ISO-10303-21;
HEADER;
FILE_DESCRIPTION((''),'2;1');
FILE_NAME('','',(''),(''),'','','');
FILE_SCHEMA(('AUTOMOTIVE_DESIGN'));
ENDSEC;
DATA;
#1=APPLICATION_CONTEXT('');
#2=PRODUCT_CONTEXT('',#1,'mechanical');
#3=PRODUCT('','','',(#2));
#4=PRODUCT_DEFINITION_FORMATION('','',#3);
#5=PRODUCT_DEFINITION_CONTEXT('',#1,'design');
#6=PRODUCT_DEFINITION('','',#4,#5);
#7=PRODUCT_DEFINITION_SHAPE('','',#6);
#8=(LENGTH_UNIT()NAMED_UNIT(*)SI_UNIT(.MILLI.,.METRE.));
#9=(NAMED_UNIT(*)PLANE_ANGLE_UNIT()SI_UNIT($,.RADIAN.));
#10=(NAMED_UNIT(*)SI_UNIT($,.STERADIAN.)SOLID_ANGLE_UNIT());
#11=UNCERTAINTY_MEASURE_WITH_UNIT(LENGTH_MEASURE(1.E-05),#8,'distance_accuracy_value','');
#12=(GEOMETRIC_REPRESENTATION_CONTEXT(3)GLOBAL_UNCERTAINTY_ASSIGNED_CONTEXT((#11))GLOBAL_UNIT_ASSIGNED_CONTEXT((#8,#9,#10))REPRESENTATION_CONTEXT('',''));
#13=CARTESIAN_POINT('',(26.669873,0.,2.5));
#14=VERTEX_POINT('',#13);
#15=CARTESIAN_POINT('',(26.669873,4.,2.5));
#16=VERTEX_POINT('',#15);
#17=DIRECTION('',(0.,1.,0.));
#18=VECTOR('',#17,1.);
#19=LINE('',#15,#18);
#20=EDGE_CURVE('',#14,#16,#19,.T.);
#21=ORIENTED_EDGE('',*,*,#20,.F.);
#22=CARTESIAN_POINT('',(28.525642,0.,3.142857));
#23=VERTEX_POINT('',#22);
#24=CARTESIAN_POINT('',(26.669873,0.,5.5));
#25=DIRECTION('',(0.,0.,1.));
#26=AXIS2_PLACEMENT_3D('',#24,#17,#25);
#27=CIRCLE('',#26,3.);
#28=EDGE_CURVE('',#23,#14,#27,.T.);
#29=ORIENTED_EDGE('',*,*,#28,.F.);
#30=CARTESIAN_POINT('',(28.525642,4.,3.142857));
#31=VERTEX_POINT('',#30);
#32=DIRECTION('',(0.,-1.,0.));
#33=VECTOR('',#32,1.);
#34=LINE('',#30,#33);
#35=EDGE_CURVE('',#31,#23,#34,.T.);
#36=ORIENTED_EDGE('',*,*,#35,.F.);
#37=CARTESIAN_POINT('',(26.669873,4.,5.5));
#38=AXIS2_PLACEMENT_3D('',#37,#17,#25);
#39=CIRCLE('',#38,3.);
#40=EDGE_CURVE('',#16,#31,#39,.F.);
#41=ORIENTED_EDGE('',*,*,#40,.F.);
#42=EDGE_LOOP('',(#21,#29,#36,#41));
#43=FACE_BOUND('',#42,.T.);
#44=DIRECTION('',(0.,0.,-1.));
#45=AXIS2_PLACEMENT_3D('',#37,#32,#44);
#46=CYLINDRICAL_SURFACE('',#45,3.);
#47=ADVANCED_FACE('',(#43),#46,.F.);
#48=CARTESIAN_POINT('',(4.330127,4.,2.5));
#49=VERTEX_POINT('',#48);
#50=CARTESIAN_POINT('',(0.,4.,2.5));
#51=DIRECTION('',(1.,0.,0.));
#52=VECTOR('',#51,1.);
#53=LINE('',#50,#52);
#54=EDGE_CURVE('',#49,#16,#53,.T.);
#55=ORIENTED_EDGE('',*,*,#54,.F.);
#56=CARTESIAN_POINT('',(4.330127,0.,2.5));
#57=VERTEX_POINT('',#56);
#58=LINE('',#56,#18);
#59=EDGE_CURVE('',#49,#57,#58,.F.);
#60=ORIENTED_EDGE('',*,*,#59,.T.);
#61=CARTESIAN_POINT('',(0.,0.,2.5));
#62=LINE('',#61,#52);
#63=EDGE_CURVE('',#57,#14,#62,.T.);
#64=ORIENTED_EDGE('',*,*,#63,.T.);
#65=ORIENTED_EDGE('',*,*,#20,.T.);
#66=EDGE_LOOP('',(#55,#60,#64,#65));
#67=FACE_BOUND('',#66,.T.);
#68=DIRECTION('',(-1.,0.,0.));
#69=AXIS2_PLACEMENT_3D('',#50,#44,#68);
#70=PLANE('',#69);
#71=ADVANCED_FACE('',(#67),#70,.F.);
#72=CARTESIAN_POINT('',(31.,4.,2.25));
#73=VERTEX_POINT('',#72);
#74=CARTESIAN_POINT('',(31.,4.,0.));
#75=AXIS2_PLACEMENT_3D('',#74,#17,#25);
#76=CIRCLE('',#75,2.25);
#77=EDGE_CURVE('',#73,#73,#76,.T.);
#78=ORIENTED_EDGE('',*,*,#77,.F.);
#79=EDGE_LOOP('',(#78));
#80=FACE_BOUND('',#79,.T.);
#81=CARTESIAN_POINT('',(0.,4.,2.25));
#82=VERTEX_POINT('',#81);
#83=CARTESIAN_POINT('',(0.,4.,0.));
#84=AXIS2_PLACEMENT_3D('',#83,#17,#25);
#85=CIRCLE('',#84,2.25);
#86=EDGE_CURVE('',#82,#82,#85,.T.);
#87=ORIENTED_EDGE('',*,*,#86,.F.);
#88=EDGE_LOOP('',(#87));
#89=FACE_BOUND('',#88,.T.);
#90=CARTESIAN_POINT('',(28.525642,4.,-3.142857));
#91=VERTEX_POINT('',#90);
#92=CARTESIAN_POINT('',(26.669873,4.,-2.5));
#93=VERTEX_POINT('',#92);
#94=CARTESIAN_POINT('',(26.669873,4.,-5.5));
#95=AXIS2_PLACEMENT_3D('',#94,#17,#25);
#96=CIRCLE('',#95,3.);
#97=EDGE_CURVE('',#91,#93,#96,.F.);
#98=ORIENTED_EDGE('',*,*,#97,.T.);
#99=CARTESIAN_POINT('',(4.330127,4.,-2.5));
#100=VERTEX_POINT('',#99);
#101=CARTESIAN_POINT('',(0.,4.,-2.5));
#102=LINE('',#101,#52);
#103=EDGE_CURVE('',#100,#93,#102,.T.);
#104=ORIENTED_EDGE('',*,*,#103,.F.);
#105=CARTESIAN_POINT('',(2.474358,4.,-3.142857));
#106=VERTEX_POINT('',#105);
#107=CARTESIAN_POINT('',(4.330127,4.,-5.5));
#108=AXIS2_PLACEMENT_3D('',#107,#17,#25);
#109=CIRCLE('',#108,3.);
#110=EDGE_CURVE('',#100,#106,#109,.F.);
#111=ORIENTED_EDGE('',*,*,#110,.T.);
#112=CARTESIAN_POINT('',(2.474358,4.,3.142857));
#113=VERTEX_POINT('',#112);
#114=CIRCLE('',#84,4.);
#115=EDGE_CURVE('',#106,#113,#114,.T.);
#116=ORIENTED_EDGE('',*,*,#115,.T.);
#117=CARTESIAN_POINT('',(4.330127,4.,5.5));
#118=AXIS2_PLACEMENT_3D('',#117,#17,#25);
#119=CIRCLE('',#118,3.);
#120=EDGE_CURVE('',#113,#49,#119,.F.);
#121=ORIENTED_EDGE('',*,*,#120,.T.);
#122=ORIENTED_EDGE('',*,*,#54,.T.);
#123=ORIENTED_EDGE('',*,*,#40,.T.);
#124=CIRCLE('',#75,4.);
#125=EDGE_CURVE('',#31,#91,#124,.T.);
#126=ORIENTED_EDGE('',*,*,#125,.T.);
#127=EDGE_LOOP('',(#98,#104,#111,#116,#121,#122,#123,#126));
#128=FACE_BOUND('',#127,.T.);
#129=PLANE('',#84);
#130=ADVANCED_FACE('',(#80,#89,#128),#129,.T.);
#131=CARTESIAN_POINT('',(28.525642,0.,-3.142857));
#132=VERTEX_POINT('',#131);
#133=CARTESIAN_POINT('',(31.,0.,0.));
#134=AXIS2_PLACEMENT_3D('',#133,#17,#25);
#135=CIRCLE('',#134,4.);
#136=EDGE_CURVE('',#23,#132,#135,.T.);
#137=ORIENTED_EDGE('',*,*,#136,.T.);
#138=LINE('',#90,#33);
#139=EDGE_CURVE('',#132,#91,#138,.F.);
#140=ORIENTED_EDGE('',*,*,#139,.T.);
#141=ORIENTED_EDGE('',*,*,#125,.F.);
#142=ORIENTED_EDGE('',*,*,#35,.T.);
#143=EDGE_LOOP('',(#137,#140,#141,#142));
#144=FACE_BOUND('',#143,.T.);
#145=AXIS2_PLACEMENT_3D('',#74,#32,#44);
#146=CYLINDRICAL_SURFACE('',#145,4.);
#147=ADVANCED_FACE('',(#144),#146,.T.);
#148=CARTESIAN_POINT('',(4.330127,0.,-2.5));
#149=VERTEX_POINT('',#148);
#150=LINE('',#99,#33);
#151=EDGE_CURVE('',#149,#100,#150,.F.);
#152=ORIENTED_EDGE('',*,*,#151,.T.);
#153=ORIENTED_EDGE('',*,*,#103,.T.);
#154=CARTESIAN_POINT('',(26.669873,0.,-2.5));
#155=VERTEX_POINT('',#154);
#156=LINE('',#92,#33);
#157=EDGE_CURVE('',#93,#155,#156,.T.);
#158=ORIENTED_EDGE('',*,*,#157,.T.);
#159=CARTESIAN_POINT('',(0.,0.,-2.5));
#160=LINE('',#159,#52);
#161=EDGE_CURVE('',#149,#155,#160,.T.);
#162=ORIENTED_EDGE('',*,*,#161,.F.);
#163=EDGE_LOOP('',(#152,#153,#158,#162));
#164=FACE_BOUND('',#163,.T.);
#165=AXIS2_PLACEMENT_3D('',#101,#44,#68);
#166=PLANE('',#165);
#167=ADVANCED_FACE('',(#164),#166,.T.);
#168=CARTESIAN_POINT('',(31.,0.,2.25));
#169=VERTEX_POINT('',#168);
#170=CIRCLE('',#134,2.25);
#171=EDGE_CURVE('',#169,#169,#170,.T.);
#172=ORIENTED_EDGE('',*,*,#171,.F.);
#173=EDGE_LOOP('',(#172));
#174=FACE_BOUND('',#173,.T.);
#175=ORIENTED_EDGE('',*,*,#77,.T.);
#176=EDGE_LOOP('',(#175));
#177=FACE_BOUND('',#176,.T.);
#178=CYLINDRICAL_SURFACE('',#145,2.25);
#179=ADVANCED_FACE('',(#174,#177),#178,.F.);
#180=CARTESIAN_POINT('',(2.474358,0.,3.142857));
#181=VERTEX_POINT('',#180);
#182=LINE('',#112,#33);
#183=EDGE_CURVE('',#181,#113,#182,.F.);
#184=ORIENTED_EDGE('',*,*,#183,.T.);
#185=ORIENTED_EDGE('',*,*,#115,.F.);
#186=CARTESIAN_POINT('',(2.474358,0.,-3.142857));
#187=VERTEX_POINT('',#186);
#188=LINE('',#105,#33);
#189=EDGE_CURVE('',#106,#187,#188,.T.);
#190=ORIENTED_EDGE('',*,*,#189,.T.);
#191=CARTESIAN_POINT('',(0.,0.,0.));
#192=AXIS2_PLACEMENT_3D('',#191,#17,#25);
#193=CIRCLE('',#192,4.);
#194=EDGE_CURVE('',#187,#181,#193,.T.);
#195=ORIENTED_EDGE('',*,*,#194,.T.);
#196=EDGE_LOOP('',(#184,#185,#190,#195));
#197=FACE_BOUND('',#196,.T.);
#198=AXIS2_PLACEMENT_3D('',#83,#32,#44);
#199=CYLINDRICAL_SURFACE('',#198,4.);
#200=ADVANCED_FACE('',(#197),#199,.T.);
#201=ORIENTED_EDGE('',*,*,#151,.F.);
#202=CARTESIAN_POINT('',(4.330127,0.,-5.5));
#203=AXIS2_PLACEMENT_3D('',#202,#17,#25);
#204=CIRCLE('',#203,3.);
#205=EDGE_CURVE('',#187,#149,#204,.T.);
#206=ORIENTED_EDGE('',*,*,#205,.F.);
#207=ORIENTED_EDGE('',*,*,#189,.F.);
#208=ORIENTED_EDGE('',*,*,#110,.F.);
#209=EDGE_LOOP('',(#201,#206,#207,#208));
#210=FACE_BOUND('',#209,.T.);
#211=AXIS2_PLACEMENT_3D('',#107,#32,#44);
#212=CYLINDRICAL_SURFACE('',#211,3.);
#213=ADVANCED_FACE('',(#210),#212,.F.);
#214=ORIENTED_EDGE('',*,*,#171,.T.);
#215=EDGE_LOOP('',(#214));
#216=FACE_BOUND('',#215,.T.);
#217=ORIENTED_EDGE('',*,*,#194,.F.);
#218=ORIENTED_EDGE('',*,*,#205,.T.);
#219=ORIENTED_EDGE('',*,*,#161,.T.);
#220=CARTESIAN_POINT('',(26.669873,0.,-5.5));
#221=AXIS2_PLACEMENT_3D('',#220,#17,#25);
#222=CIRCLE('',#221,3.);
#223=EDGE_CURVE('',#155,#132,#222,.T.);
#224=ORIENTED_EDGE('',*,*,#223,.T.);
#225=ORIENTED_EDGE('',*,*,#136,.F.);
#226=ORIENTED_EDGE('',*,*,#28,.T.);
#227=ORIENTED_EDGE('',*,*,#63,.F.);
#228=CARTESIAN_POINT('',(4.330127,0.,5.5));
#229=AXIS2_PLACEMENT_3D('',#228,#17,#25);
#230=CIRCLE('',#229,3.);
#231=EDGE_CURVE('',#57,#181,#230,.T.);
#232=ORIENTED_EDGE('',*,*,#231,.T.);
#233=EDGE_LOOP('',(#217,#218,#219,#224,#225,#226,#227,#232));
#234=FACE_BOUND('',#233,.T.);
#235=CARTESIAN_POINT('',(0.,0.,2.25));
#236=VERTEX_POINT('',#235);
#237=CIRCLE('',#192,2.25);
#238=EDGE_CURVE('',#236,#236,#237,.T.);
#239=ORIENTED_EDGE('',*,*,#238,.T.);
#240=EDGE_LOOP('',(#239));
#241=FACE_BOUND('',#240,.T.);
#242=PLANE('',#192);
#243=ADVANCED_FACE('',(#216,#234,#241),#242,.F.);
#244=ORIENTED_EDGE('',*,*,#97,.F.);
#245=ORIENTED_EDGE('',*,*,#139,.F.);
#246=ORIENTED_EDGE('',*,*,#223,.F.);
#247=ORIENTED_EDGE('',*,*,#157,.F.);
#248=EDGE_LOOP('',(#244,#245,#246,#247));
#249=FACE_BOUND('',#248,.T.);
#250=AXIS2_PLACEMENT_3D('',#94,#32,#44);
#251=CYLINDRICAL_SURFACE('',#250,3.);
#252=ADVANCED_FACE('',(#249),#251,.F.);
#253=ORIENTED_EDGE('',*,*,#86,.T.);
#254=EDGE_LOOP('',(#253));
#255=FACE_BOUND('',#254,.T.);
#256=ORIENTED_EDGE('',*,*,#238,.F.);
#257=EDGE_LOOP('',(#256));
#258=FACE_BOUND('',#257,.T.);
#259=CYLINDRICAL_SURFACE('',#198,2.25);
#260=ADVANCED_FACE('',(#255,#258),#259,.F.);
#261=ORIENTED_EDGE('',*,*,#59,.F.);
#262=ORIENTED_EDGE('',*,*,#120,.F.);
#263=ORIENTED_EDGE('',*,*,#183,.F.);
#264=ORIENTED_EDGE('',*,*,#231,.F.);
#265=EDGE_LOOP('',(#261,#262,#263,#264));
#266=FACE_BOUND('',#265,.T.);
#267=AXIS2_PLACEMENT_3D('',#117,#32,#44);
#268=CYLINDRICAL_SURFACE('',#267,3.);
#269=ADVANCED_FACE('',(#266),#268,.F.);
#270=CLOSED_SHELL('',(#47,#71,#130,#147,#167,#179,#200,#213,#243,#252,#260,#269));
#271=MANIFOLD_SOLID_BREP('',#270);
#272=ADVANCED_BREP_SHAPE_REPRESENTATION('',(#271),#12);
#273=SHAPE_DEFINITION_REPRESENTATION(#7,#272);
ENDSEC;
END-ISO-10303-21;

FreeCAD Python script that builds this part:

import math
import FreeCAD as App
import Part
import Sketcher


def edges_at(feature, points):
    """Names of the edges that pass closest to the given points."""
    edges = feature.Shape.Edges
    near = lambda p: min(range(len(edges)), key=lambda i: edges[i].distToShape(Part.Vertex(*p))[0])
    return sorted({f"Edge{near(p) + 1}" for p in points})

doc = App.newDocument("Part")
body = doc.addObject("PartDesign::Body", "Body")

sketch1 = body.newObject("Sketcher::SketchObject", "Sketch")
sketch1.AttachmentSupport = (doc.getObject("XZ_Plane"), [""])
sketch1.MapMode = "FlatFace"
sketch1.addGeometry([
    Part.LineSegment(App.Vector(27.9, -2.5, 0), App.Vector(3.1, -2.5, 0)),
    Part.ArcOfCircle(Part.Circle(App.Vector(0, 0, 0), App.Vector(0, 0, 1), 4), math.radians(39), math.radians(321)),
    Part.LineSegment(App.Vector(3.1, 2.5, 0), App.Vector(27.9, 2.5, 0)),
    Part.ArcOfCircle(Part.Circle(App.Vector(31, 0, 0), App.Vector(0, 0, 1), 4), math.radians(-141), math.radians(141)),
    Part.Circle(App.Vector(0, 0, 0), App.Vector(0, 0, 1), 2.2),
    Part.Circle(App.Vector(31, 0, 0), App.Vector(0, 0, 1), 2.2),
], False)
sketch1.addConstraint([
    Sketcher.Constraint("Coincident", 0, 2, 1, 2),
    Sketcher.Constraint("Coincident", 1, 1, 2, 1),
    Sketcher.Constraint("Coincident", 2, 2, 3, 2),
    Sketcher.Constraint("Coincident", 3, 1, 0, 1),
    Sketcher.Constraint("Horizontal", 0),
    Sketcher.Constraint("Horizontal", 2),
    Sketcher.Constraint("Coincident", 1, 3, -1, 1),
    Sketcher.Constraint("Coincident", 4, 3, -1, 1),
    Sketcher.Constraint("Coincident", 5, 3, 3, 3),
    Sketcher.Constraint("Equal", 1, 3),
    Sketcher.Constraint("Equal", 4, 5),
    Sketcher.Constraint("Symmetric", 2, 2, 3, 1, -1),
    Sketcher.Constraint("Radius", 1, 4.0),
    Sketcher.Constraint("Diameter", 4, 4.5),
    Sketcher.Constraint("DistanceX", -1, 1, 3, 3, 31.0),
    Sketcher.Constraint("DistanceY", 0, 2, 1, 1, 5.0),
])
pad1 = body.newObject("PartDesign::Pad", "Pad")
pad1.Profile = sketch1
pad1.Length = 4
pad1.Reversed = True
doc.recompute()

fillet = body.newObject("PartDesign::Fillet", "Fillet")
fillet.Base = (pad1, edges_at(pad1, [
    (27.878, 2, 2.5),
    (3.122, 2, 2.5),
    (3.122, 2, -2.5),
    (27.878, 2, -2.5),
]))
fillet.Radius = 3

doc.recompute()
